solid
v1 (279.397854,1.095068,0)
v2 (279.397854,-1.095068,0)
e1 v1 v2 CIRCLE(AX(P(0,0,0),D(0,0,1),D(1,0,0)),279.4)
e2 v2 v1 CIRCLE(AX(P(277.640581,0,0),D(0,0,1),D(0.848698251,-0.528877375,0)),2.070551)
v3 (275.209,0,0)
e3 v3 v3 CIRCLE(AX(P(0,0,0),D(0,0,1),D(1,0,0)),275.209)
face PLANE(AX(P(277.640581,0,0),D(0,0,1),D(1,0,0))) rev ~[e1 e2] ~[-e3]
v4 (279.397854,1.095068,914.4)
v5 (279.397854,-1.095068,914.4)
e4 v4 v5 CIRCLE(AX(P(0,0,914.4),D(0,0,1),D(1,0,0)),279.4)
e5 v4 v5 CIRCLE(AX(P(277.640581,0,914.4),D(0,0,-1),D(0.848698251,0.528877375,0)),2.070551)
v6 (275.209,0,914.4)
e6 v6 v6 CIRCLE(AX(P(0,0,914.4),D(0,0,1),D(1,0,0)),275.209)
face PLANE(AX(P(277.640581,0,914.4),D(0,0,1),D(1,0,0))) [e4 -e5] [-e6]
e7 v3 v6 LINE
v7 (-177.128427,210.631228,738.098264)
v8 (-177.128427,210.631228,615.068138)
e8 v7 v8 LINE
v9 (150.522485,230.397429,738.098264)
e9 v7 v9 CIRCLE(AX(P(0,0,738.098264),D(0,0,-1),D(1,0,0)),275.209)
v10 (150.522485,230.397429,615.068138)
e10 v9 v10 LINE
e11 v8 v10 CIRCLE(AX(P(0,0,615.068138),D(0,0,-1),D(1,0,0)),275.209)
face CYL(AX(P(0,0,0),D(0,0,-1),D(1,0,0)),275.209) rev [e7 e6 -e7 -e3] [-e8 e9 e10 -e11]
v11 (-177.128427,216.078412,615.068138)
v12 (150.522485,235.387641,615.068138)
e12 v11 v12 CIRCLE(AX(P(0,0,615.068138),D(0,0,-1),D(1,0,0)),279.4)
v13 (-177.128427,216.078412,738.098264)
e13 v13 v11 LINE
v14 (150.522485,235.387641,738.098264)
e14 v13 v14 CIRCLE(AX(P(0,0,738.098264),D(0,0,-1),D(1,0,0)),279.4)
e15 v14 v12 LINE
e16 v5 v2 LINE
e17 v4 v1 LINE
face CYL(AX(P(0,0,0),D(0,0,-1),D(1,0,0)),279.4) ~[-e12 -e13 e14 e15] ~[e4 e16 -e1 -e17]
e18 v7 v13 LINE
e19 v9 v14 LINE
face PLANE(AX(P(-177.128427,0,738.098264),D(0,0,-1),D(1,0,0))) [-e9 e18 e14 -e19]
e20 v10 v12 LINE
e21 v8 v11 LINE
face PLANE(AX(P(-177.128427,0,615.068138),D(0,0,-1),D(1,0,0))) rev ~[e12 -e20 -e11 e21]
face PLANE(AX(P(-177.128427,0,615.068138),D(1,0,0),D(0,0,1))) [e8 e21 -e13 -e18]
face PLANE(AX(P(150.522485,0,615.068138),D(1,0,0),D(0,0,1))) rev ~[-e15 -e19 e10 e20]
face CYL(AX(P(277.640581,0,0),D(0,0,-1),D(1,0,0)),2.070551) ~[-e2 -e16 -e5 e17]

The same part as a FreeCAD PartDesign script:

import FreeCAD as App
import Part
import Sketcher
Q = App.Units.Quantity


def add_polygon(sketch, points):
    """Adds a closed chain of lines whose ends are joined by coincident constraints."""
    first, n = sketch.GeometryCount, len(points)
    for a, b in zip(points, points[1:] + points[:1]):
        sketch.addGeometry(Part.LineSegment(App.Vector(*a, 0), App.Vector(*b, 0)), False)
    for i in range(n):
        sketch.addConstraint(Sketcher.Constraint("Coincident", first + i, 2, first + (i + 1) % n, 1))

doc = App.newDocument("Part")
params = doc.addObject("Spreadsheet::Sheet", "Params")
for row, (alias, value) in enumerate([
    ("sketch1_diameter", "22 in"),
    ("sketch1_diameter2", "21.67 in"),
    ("pad1_length", "36 in"),
    ("pad2_length", "36 in"),
], start=1):
    params.set(f"A{row}", alias)
    params.set(f"B{row}", "=" + value)
    params.setAlias(f"B{row}", alias)

body = doc.addObject("PartDesign::Body", "Body")

sketch1 = body.newObject("Sketcher::SketchObject", "Sketch")
sketch1.AttachmentSupport = (doc.getObject("XY_Plane"), [""])
sketch1.MapMode = "FlatFace"
sketch1.addGeometry(Part.Circle(App.Vector(0, 0, 0), App.Vector(0, 0, 1), 279), False)
sketch1.addGeometry(Part.Circle(App.Vector(0, 0, 0), App.Vector(0, 0, 1), 275), False)
sketch1.addConstraint(Sketcher.Constraint("Coincident", 0, 3, -1, 1))
sketch1.addConstraint(Sketcher.Constraint("Coincident", 1, 3, -1, 1))
sketch1.addConstraint(Sketcher.Constraint("Diameter", 0, Q("22 in")))
sketch1.addConstraint(Sketcher.Constraint("Diameter", 1, Q("21.67 in")))
sketch1.setExpression("Constraints[2]", "Params.sketch1_diameter")
sketch1.setExpression("Constraints[3]", "Params.sketch1_diameter2")
pad1 = body.newObject("PartDesign::Pad", "Pad")
pad1.Profile = sketch1
pad1.setExpression("Length", "Params.pad1_length")

sketch2 = body.newObject("Sketcher::SketchObject", "Sketch001")
sketch2.AttachmentSupport = (doc.getObject("XZ_Plane"), [""])
sketch2.MapMode = "FlatFace"
add_polygon(sketch2, [(-177, 738), (-177, 615), (151, 615), (151, 738)])
sketch2.addConstraint(Sketcher.Constraint("Vertical", 0))
sketch2.addConstraint(Sketcher.Constraint("Horizontal", 1))
sketch2.addConstraint(Sketcher.Constraint("Vertical", 2))
sketch2.addConstraint(Sketcher.Constraint("Horizontal", 3))
sketch2.addConstraint(Sketcher.Constraint("DistanceX", 1, 1, 1, 2, Q("327.650912 mm")))
sketch2.addConstraint(Sketcher.Constraint("DistanceY", 0, 2, 0, 1, Q("123.030126 mm")))
sketch2.addConstraint(Sketcher.Constraint("DistanceY", -1, 1, 0, 2, Q("615.068138 mm")))
sketch2.addConstraint(Sketcher.Constraint("DistanceX", 0, 2, -1, 1, Q("177.128427 mm")))
pocket1 = body.newObject("PartDesign::Pocket", "Pocket")
pocket1.Profile = sketch2
pocket1.Type = "ThroughAll"

sketch3 = body.newObject("Sketcher::SketchObject", "Sketch002")
sketch3.AttachmentSupport = (doc.getObject("XY_Plane"), [""])
sketch3.MapMode = "FlatFace"
sketch3.addGeometry(Part.Circle(App.Vector(277.6, 0, 0), App.Vector(0, 0, 1), 2.1), False)
sketch3.addConstraint(Sketcher.Constraint("PointOnObject", 0, 3, -1))
sketch3.addConstraint(Sketcher.Constraint("Diameter", 0, Q("4.141102 mm")))
sketch3.addConstraint(Sketcher.Constraint("DistanceX", -1, 1, 0, 3, Q("277.640581 mm")))
pad2 = body.newObject("PartDesign::Pad", "Pad001")
pad2.Profile = sketch3
pad2.setExpression("Length", "Params.pad2_length")

doc.recompute()
